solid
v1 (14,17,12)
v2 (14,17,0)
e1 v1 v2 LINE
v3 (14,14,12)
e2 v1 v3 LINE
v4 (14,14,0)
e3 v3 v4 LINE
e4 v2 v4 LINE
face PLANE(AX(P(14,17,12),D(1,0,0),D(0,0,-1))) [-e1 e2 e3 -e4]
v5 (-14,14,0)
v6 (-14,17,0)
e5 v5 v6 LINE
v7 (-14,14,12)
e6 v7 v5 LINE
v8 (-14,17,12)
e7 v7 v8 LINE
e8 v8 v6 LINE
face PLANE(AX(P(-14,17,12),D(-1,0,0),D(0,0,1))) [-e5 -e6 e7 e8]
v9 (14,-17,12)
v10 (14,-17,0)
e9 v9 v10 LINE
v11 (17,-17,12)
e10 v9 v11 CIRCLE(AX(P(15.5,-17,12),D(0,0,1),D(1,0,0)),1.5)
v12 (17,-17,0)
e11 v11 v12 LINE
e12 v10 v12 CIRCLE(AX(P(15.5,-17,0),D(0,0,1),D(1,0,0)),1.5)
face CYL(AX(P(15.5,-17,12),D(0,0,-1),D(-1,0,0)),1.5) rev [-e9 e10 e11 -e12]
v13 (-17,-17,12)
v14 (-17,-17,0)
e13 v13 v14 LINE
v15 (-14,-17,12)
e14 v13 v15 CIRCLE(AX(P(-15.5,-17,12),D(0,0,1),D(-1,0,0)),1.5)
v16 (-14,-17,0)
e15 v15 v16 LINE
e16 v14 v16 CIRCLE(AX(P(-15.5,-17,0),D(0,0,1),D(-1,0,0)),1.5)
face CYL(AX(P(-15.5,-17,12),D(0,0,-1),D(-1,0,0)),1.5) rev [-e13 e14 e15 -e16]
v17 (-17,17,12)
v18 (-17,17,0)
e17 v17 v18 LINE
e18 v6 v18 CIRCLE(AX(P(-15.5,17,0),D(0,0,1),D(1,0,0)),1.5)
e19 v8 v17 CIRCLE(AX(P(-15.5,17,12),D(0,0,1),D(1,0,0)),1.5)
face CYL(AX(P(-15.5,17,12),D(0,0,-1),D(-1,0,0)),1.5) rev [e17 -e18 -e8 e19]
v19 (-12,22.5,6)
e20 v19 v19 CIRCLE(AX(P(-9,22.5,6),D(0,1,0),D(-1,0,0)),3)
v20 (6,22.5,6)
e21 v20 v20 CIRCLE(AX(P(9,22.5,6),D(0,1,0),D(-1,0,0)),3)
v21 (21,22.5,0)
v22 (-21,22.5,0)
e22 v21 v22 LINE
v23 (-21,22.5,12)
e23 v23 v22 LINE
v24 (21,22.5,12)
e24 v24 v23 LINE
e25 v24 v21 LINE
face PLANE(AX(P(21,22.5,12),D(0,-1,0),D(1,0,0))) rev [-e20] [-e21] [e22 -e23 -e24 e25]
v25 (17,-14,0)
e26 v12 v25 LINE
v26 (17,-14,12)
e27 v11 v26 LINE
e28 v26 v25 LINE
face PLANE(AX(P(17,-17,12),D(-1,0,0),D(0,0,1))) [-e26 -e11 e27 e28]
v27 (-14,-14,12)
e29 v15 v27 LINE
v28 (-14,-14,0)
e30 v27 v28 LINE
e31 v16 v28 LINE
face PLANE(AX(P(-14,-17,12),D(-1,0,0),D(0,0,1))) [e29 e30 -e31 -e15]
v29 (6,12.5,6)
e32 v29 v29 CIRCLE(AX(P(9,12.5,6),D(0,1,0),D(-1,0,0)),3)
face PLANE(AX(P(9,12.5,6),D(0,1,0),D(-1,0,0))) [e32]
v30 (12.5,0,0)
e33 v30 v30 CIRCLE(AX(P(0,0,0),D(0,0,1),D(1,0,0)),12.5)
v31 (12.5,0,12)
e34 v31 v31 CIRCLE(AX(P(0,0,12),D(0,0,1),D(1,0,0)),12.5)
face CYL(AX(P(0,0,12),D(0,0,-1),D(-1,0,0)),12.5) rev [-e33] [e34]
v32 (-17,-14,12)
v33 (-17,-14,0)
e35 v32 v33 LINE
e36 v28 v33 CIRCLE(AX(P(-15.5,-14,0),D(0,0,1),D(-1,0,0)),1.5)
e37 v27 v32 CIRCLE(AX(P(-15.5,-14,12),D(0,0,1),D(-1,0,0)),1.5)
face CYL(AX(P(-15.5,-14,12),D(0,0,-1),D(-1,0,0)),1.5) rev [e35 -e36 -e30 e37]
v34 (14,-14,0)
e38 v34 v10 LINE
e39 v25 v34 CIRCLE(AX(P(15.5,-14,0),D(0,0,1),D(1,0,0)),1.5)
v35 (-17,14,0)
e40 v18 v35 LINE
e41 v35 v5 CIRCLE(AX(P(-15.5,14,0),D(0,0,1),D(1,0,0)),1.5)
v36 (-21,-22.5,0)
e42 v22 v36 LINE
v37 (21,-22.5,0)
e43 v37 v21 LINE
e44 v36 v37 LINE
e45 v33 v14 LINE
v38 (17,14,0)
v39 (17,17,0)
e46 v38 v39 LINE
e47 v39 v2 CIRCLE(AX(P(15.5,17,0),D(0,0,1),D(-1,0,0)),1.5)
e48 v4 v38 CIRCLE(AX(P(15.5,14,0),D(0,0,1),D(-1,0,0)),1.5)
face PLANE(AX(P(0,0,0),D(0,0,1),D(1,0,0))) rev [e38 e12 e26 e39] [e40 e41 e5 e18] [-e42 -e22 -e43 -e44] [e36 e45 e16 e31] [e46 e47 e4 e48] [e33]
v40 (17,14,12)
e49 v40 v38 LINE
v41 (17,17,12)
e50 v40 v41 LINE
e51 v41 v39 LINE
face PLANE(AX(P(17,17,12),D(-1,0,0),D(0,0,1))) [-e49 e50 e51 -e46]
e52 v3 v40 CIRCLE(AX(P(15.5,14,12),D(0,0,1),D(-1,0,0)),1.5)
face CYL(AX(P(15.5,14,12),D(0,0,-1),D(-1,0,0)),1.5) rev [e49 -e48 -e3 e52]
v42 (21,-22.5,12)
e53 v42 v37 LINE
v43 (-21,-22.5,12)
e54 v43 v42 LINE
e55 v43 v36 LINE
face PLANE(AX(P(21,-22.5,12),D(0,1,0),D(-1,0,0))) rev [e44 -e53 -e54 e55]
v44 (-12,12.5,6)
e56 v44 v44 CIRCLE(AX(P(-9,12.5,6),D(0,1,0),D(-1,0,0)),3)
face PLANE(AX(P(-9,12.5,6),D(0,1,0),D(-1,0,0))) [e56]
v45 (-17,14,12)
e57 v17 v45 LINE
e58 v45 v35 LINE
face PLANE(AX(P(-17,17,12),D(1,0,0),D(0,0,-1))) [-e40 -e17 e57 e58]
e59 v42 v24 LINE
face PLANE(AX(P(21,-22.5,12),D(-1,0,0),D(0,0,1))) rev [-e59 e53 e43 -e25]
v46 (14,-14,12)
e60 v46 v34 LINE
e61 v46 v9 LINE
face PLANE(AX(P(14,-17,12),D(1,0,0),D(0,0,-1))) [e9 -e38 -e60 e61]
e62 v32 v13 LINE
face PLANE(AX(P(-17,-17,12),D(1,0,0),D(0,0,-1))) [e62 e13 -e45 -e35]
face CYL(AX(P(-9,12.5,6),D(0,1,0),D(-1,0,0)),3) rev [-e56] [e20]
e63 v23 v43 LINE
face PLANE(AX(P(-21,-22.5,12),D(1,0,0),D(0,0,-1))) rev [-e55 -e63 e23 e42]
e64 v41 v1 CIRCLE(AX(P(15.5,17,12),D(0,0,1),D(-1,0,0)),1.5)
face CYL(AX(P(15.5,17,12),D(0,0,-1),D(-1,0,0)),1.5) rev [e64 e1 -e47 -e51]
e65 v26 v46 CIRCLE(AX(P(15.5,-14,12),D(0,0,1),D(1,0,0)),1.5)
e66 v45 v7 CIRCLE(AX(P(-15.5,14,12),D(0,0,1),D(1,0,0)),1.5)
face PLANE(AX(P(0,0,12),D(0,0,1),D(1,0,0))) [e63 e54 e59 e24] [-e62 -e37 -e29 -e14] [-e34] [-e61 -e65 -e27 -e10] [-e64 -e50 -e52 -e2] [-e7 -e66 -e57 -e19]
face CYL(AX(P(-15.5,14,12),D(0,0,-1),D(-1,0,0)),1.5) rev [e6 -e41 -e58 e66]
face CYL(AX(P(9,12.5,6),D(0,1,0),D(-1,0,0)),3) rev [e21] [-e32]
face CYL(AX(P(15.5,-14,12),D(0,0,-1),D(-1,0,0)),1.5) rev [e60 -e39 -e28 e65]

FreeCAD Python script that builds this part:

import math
import FreeCAD as App
import Part
import Sketcher

V = App.Vector
Q = App.Units.Quantity


def add_polygon(sketch, points):
    """Adds a closed chain of lines whose ends are joined by coincident constraints."""
    first, n = sketch.GeometryCount, len(points)
    for a, b in zip(points, points[1:] + points[:1]):
        sketch.addGeometry(Part.LineSegment(App.Vector(*a, 0), App.Vector(*b, 0)), False)
    for i in range(n):
        sketch.addConstraint(Sketcher.Constraint("Coincident", first + i, 2, first + (i + 1) % n, 1))

doc = App.newDocument("Part")
body = doc.addObject("PartDesign::Body", "Body")

# Sketch on XY plane
sketch1 = body.newObject("Sketcher::SketchObject", "Sketch")
sketch1.AttachmentSupport = (doc.getObject("XY_Plane"), [""])
sketch1.MapMode = "FlatFace"
add_polygon(sketch1, [(-21, 22.5), (-21, -22.5), (21, -22.5), (21, 22.5)])  # lines 0-3
sketch1.addGeometry(Part.LineSegment(V(-14, -14, 0), V(-14, -17, 0)), False)  # 4
sketch1.addGeometry(Part.ArcOfCircle(Part.Circle(V(-15.5, -17, 0), V(0, 0, 1), 1.5), math.radians(180), math.radians(360)), False)  # 5
sketch1.addGeometry(Part.LineSegment(V(-17, -17, 0), V(-17, -14, 0)), False)  # 6
sketch1.addGeometry(Part.ArcOfCircle(Part.Circle(V(-15.5, -14, 0), V(0, 0, 1), 1.5), math.radians(0), math.radians(180)), False)  # 7
sketch1.addGeometry(Part.ArcOfCircle(Part.Circle(V(15.5, -17, 0), V(0, 0, 1), 1.5), math.radians(180), math.radians(360)), False)  # 8
sketch1.addGeometry(Part.LineSegment(V(14, -17, 0), V(14, -14, 0)), False)  # 9
sketch1.addGeometry(Part.ArcOfCircle(Part.Circle(V(15.5, -14, 0), V(0, 0, 1), 1.5), math.radians(0), math.radians(180)), False)  # 10
sketch1.addGeometry(Part.LineSegment(V(17, -14, 0), V(17, -17, 0)), False)  # 11
sketch1.addGeometry(Part.ArcOfCircle(Part.Circle(V(-15.5, 17, 0), V(0, 0, 1), 1.5), math.radians(0), math.radians(180)), False)  # 12
sketch1.addGeometry(Part.LineSegment(V(-14, 17, 0), V(-14, 14, 0)), False)  # 13
sketch1.addGeometry(Part.ArcOfCircle(Part.Circle(V(-15.5, 14, 0), V(0, 0, 1), 1.5), math.radians(180), math.radians(360)), False)  # 14
sketch1.addGeometry(Part.LineSegment(V(-17, 14, 0), V(-17, 17, 0)), False)  # 15
sketch1.addGeometry(Part.Circle(V(0, 0, 0), V(0, 0, 1), 12.5), False)  # 16
sketch1.addGeometry(Part.LineSegment(V(14, 14, 0), V(14, 17, 0)), False)  # 17
sketch1.addGeometry(Part.ArcOfCircle(Part.Circle(V(15.5, 17, 0), V(0, 0, 1), 1.5), math.radians(0), math.radians(180)), False)  # 18
sketch1.addGeometry(Part.LineSegment(V(17, 17, 0), V(17, 14, 0)), False)  # 19
sketch1.addGeometry(Part.ArcOfCircle(Part.Circle(V(15.5, 14, 0), V(0, 0, 1), 1.5), math.radians(180), math.radians(360)), False)  # 20
sketch1.addConstraint(Sketcher.Constraint("Tangent", 4, 2, 5, 2))
sketch1.addConstraint(Sketcher.Constraint("Tangent", 5, 1, 6, 1))
sketch1.addConstraint(Sketcher.Constraint("Tangent", 6, 2, 7, 2))
sketch1.addConstraint(Sketcher.Constraint("Tangent", 7, 1, 4, 1))
sketch1.addConstraint(Sketcher.Constraint("Tangent", 8, 1, 9, 1))
sketch1.addConstraint(Sketcher.Constraint("Tangent", 9, 2, 10, 2))
sketch1.addConstraint(Sketcher.Constraint("Tangent", 10, 1, 11, 1))
sketch1.addConstraint(Sketcher.Constraint("Tangent", 11, 2, 8, 2))
sketch1.addConstraint(Sketcher.Constraint("Tangent", 12, 1, 13, 1))
sketch1.addConstraint(Sketcher.Constraint("Tangent", 13, 2, 14, 2))
sketch1.addConstraint(Sketcher.Constraint("Tangent", 14, 1, 15, 1))
sketch1.addConstraint(Sketcher.Constraint("Tangent", 15, 2, 12, 2))
sketch1.addConstraint(Sketcher.Constraint("Tangent", 17, 2, 18, 2))
sketch1.addConstraint(Sketcher.Constraint("Tangent", 18, 1, 19, 1))
sketch1.addConstraint(Sketcher.Constraint("Tangent", 19, 2, 20, 2))
sketch1.addConstraint(Sketcher.Constraint("Tangent", 20, 1, 17, 1))
sketch1.addConstraint(Sketcher.Constraint("Vertical", 0))
sketch1.addConstraint(Sketcher.Constraint("Horizontal", 1))
sketch1.addConstraint(Sketcher.Constraint("Vertical", 2))
sketch1.addConstraint(Sketcher.Constraint("Horizontal", 3))
sketch1.addConstraint(Sketcher.Constraint("Vertical", 4))
sketch1.addConstraint(Sketcher.Constraint("Vertical", 6))
sketch1.addConstraint(Sketcher.Constraint("Vertical", 9))
sketch1.addConstraint(Sketcher.Constraint("Vertical", 11))
sketch1.addConstraint(Sketcher.Constraint("Vertical", 13))
sketch1.addConstraint(Sketcher.Constraint("Vertical", 15))
sketch1.addConstraint(Sketcher.Constraint("Vertical", 17))
sketch1.addConstraint(Sketcher.Constraint("Vertical", 19))
sketch1.addConstraint(Sketcher.Constraint("Coincident", 16, 3, -1, 1))
sketch1.addConstraint(Sketcher.Constraint("Equal", 7, 8))
sketch1.addConstraint(Sketcher.Constraint("Equal", 10, 12))
sketch1.addConstraint(Sketcher.Constraint("Equal", 14, 18))
sketch1.addConstraint(Sketcher.Constraint("Symmetric", 8, 3, 12, 3, -1, 1))
sketch1.addConstraint(Sketcher.Constraint("Symmetric", 5, 3, 18, 3, -1, 1))
sketch1.addConstraint(Sketcher.Constraint("Symmetric", 0, 2, 2, 2, -1, 1))
sketch1.addConstraint(Sketcher.Constraint("Symmetric", 5, 3, 8, 3, -2))
sketch1.addConstraint(Sketcher.Constraint("Horizontal", 7, 3, 10, 3))
sketch1.addConstraint(Sketcher.Constraint("Horizontal", 14, 3, 20, 3))
sketch1.addConstraint(Sketcher.Constraint("Equal", 11, 13))
sketch1.addConstraint(Sketcher.Constraint("Diameter", 16, Q("25 mm")))
sketch1.addConstraint(Sketcher.Constraint("Radius", 5, Q("1.5 mm")))
sketch1.addConstraint(Sketcher.Constraint("DistanceX", 1, 1, 1, 2, Q("42 mm")))
sketch1.addConstraint(Sketcher.Constraint("DistanceY", 0, 2, 0, 1, Q("45 mm")))
sketch1.addConstraint(Sketcher.Constraint("DistanceY", 4, 2, 4, 1, Q("3 mm")))
sketch1.addConstraint(Sketcher.Constraint("DistanceY", 5, 3, -1, 1, Q("17 mm")))
sketch1.addConstraint(Sketcher.Constraint("DistanceX", 4, 2, -1, 1, Q("14 mm")))
pad1 = body.newObject("PartDesign::Pad", "Pad")
pad1.Profile = sketch1
pad1.Length = 12

# Sketch on XZ plane
sketch2 = body.newObject("Sketcher::SketchObject", "Sketch001")
sketch2.AttachmentSupport = (doc.getObject("XZ_Plane"), [""])
sketch2.MapMode = "FlatFace"
sketch2.AttachmentOffset = App.Placement(V(0, 0, -22.5), App.Rotation())
sketch2.addGeometry(Part.Circle(V(-9, 6, 0), V(0, 0, 1), 3), False)
sketch2.addGeometry(Part.Circle(V(9, 6, 0), V(0, 0, 1), 3), False)
sketch2.addConstraint(Sketcher.Constraint("Equal", 0, 1))
sketch2.addConstraint(Sketcher.Constraint("Symmetric", 0, 3, 1, 3, -2))
sketch2.addConstraint(Sketcher.Constraint("Diameter", 0, Q("6 mm")))
sketch2.addConstraint(Sketcher.Constraint("DistanceX", 0, 3, -1, 1, Q("9 mm")))
sketch2.addConstraint(Sketcher.Constraint("DistanceY", -1, 1, 0, 3, Q("6 mm")))
pocket1 = body.newObject("PartDesign::Pocket", "Pocket")
pocket1.Profile = sketch2
pocket1.Length = 10
pocket1.Reversed = True

doc.recompute()
